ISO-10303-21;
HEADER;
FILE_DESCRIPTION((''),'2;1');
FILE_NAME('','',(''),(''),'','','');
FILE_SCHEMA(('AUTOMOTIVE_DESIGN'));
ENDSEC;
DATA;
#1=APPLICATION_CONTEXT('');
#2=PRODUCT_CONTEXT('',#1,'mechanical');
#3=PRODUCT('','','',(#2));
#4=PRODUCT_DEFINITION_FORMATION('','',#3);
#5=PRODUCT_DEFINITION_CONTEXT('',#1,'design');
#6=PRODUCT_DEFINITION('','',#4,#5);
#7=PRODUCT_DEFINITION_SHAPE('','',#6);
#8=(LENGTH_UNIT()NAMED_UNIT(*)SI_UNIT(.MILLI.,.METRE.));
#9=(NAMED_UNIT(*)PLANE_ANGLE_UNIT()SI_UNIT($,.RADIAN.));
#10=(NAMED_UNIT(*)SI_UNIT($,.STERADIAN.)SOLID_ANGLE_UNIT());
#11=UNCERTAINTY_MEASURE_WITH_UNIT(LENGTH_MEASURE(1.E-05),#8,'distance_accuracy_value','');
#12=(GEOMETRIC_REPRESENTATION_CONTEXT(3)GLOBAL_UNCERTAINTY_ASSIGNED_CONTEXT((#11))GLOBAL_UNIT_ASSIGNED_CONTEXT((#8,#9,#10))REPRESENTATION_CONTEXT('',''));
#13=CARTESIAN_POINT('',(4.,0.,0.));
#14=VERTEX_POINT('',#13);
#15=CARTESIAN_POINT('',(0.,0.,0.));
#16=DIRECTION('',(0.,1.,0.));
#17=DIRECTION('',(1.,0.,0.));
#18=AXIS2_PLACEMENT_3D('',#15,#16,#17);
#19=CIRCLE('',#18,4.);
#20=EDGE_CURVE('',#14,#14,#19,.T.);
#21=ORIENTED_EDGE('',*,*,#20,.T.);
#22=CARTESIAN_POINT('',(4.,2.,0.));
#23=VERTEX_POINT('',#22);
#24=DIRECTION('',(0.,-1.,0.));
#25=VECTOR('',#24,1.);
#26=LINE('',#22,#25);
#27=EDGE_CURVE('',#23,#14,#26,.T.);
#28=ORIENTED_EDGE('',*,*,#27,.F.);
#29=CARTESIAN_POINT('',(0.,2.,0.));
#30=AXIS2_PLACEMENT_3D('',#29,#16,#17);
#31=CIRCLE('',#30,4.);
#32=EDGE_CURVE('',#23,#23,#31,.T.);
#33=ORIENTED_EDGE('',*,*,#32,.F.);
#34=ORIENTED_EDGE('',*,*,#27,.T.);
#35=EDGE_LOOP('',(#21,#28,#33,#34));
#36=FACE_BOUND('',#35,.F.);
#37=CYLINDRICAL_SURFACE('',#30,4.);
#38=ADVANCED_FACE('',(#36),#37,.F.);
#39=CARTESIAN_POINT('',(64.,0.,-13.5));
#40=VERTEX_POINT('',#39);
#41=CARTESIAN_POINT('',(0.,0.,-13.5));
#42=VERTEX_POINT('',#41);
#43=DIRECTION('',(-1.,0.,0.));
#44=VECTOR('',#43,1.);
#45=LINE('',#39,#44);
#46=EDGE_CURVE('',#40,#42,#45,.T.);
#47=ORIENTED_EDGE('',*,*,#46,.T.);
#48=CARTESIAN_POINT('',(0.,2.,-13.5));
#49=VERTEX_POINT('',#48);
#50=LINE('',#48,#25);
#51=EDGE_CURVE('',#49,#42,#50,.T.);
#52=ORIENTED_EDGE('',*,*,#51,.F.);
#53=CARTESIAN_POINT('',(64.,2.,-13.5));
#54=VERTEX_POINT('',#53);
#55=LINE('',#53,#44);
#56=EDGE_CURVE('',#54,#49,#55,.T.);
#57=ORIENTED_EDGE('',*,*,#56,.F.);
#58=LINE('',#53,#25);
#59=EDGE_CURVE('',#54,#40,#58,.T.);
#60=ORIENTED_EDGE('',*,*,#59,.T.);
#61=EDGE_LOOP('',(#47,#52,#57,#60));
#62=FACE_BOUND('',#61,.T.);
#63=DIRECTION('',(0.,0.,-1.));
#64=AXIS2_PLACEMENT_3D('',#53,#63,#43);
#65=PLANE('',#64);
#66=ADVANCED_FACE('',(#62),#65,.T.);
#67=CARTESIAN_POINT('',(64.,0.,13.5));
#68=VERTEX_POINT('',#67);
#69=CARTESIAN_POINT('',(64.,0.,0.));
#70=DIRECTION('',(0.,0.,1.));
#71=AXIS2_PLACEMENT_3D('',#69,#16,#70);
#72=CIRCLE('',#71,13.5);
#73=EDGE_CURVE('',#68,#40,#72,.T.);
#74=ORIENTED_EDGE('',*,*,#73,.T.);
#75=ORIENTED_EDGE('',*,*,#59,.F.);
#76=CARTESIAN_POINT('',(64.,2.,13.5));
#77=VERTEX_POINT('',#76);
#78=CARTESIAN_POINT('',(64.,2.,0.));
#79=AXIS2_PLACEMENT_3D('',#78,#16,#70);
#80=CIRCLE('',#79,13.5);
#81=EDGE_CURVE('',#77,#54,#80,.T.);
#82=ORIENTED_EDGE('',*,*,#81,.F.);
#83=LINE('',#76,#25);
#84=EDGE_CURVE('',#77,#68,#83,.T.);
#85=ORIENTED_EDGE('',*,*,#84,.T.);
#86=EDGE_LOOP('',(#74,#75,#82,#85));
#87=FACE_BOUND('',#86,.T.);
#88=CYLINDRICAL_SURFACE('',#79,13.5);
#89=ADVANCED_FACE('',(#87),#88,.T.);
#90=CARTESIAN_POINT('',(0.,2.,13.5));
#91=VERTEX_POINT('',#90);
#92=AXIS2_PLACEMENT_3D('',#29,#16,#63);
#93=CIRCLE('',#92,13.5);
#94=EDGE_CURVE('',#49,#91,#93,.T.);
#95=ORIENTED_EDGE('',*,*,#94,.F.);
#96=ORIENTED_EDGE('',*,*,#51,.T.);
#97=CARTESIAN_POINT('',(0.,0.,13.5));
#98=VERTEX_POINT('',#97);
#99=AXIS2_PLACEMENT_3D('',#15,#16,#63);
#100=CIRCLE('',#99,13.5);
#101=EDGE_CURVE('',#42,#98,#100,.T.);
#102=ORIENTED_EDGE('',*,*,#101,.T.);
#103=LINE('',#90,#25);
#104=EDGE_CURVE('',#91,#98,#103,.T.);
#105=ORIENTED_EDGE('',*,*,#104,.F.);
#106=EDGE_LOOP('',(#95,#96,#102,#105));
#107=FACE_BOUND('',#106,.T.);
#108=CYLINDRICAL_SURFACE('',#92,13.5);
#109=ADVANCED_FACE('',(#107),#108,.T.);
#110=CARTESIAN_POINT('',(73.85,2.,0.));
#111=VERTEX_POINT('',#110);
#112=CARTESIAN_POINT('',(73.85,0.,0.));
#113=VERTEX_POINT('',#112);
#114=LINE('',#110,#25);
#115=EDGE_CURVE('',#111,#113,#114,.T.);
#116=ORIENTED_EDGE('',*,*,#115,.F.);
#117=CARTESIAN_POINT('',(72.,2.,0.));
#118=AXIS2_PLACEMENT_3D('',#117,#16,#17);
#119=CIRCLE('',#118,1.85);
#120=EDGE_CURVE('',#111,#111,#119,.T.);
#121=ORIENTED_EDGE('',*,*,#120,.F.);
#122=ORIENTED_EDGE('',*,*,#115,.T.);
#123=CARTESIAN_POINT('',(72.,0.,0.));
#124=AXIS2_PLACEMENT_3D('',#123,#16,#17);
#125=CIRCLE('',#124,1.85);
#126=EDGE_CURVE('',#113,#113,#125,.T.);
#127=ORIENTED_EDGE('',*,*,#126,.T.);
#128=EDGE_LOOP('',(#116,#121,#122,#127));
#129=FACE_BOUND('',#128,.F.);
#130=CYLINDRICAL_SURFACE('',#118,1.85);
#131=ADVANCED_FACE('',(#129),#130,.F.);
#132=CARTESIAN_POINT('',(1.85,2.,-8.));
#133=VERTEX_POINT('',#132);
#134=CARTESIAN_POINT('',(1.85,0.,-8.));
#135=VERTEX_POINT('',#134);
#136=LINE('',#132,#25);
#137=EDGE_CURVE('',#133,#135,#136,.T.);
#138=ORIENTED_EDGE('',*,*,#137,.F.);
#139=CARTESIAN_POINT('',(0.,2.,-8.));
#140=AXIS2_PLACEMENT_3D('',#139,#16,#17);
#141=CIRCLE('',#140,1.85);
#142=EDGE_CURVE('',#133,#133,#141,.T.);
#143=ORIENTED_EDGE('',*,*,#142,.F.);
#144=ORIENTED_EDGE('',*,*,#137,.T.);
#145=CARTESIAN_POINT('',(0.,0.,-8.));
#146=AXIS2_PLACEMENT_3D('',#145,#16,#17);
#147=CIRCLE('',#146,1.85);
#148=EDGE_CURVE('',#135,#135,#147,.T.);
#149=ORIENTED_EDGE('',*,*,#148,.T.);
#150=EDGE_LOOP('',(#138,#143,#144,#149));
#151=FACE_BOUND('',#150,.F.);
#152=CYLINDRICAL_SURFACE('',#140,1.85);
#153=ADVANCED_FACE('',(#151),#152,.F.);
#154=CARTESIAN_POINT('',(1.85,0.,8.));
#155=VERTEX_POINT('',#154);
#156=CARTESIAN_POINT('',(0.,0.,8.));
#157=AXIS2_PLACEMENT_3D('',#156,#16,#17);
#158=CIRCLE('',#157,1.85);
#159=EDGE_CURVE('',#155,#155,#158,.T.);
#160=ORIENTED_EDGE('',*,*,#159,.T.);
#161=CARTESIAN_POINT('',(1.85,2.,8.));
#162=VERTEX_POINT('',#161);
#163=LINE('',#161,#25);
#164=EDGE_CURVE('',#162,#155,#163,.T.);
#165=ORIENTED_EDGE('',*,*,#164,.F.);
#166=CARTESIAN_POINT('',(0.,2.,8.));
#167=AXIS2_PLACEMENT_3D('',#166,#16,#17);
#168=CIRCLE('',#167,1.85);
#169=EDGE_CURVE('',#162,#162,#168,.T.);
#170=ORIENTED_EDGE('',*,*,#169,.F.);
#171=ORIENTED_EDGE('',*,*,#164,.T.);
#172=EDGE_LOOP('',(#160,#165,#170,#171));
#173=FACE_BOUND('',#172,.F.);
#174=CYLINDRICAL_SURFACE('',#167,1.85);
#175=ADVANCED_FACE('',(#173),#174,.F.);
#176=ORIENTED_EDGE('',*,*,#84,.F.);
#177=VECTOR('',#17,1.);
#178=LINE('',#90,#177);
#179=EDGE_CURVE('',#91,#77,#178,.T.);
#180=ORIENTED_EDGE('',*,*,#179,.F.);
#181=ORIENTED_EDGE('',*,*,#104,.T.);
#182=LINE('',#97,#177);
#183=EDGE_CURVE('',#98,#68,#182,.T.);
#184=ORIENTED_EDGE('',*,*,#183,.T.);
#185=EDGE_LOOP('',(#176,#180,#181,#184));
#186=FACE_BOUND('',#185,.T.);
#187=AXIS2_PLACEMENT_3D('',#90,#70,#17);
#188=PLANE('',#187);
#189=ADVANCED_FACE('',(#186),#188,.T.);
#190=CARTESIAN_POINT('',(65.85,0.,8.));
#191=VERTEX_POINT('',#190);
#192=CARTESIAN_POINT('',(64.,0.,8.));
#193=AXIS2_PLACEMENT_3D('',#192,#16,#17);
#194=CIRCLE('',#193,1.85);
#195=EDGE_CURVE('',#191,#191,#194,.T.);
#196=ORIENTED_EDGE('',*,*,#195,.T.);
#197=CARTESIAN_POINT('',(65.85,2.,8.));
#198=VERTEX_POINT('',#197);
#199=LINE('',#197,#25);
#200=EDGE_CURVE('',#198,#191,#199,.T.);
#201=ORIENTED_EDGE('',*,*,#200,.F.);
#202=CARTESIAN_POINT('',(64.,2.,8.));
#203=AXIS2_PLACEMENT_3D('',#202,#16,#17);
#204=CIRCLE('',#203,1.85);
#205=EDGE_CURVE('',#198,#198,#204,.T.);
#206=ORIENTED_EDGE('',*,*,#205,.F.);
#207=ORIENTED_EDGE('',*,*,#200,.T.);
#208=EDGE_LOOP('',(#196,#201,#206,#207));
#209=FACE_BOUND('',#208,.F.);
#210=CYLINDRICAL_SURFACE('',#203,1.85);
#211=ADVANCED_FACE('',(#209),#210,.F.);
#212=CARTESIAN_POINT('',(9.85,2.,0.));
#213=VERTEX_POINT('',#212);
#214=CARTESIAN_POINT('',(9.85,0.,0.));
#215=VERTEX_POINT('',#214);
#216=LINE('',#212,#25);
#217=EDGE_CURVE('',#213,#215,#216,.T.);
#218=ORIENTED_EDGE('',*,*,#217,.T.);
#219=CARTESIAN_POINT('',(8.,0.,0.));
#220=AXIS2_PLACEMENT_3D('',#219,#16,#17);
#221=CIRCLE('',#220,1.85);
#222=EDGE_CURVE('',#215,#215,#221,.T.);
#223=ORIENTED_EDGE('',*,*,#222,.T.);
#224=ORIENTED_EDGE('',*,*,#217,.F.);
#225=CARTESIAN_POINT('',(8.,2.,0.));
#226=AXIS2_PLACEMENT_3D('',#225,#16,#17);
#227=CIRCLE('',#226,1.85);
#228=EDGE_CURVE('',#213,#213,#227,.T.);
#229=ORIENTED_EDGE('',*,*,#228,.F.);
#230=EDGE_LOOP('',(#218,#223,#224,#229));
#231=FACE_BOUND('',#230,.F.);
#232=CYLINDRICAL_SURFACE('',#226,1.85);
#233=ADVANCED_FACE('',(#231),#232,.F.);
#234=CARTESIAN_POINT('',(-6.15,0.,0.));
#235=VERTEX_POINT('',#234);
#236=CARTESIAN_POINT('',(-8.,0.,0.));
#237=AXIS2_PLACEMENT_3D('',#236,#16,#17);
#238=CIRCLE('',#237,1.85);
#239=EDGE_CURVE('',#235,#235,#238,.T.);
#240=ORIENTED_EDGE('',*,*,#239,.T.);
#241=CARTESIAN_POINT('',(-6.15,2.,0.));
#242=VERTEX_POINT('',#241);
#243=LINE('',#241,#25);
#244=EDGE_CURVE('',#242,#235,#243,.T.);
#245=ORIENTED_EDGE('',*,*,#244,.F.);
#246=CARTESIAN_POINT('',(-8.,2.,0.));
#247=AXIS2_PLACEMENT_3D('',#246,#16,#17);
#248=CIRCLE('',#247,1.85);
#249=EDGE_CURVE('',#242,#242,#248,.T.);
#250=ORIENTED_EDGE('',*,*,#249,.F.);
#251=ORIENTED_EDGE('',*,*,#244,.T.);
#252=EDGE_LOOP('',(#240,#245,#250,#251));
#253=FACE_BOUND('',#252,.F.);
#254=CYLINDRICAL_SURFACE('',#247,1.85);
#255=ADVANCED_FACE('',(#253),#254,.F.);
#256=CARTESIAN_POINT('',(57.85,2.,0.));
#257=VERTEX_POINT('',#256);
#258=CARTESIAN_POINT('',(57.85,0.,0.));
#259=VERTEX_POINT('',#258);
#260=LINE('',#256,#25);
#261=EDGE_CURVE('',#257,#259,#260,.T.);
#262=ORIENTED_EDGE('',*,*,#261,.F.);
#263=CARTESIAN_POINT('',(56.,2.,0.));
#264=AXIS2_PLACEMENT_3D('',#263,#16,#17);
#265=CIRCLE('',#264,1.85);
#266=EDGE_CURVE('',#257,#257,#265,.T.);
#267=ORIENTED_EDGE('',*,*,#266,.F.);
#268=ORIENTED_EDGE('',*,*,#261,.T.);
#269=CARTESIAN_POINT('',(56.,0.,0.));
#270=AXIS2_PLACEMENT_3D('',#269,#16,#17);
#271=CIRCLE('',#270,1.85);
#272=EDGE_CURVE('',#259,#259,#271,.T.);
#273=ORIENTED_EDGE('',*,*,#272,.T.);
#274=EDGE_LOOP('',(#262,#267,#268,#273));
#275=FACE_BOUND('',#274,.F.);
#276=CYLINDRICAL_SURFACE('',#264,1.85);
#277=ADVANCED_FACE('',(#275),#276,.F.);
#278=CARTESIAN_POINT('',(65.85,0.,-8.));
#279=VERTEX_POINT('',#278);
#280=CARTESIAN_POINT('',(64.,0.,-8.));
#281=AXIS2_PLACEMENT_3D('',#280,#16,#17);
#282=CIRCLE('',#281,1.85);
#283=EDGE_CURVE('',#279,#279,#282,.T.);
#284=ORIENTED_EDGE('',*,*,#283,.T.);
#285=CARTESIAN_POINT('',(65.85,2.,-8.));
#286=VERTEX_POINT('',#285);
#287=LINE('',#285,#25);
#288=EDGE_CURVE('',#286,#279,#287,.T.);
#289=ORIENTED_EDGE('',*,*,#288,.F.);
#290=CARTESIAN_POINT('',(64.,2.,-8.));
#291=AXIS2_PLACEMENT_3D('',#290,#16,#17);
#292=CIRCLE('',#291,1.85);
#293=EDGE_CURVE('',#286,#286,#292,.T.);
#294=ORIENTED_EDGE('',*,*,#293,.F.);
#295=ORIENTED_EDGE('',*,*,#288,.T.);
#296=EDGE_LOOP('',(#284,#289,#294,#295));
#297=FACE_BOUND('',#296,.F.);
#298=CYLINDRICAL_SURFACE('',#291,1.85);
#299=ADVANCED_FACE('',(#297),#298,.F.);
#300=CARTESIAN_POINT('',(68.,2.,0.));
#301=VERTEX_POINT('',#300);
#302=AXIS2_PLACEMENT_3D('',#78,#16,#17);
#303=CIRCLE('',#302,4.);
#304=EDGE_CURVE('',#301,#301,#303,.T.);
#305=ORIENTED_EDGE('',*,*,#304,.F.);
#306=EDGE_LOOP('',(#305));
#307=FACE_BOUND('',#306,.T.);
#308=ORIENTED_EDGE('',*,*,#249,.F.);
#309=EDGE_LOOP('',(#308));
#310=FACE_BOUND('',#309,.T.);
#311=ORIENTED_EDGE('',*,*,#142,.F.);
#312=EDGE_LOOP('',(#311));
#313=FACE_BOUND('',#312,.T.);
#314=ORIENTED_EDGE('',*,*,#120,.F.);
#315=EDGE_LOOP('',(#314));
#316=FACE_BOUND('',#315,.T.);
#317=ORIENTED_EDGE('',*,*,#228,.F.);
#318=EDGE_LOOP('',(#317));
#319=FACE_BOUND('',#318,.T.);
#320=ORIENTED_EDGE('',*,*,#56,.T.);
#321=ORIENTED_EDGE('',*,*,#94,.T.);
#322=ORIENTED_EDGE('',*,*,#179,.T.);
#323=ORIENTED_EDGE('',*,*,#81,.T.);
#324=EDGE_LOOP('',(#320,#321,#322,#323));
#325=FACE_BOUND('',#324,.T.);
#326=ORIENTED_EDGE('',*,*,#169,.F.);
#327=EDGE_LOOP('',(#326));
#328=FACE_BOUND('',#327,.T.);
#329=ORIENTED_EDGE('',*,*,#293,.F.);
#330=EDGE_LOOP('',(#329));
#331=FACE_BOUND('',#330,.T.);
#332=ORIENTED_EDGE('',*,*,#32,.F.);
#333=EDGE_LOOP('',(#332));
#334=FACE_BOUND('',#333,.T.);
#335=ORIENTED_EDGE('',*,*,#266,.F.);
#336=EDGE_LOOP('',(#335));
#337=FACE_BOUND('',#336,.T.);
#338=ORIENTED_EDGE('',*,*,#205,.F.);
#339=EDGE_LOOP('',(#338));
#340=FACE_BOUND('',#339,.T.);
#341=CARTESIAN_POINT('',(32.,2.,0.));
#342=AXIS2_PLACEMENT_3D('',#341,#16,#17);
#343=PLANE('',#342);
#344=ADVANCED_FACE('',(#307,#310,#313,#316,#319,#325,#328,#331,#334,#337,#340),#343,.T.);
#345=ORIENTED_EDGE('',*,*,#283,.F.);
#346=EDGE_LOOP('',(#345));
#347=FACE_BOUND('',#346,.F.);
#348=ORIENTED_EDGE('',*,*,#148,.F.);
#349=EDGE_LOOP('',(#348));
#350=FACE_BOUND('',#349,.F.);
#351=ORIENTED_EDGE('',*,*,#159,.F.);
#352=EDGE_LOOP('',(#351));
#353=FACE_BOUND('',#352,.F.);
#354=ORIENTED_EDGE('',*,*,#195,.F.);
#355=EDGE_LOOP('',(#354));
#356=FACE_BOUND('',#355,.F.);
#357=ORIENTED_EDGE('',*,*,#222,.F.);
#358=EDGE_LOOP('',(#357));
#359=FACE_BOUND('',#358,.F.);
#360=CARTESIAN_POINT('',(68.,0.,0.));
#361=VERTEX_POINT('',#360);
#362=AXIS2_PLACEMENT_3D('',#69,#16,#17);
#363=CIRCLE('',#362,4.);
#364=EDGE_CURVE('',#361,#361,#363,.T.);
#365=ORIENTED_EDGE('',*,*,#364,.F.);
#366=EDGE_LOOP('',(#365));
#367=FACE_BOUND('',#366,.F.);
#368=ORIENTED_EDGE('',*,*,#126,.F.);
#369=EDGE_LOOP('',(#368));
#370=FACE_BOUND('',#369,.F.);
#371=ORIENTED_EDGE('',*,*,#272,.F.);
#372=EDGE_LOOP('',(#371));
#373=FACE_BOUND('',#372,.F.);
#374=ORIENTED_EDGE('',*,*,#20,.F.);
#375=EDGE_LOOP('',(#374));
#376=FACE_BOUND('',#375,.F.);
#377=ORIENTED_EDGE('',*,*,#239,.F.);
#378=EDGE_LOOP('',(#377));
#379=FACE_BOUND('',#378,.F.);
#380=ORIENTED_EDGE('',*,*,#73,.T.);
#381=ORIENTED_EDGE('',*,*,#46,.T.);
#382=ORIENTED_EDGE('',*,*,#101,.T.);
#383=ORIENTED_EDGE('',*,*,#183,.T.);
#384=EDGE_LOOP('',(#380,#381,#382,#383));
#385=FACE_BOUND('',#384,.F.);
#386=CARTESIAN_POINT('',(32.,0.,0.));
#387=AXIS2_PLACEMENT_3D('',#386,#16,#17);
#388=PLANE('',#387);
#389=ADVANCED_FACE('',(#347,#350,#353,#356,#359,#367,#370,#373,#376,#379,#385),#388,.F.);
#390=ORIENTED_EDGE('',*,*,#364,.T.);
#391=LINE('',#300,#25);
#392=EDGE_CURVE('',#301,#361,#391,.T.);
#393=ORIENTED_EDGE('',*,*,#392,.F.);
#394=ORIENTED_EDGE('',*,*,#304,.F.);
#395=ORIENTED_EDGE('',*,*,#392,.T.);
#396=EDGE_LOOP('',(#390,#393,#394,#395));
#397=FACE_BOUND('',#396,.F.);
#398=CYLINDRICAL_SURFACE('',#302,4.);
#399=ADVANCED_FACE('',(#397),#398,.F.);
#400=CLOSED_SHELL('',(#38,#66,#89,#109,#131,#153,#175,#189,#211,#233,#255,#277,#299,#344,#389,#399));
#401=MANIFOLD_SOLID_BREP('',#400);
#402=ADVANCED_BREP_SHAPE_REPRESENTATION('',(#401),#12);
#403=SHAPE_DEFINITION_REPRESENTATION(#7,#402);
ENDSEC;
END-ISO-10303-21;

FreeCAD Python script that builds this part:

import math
import FreeCAD as App
import Part
import Sketcher

V = App.Vector

doc = App.newDocument("Part")
params = doc.addObject("Spreadsheet::Sheet", "Params")
for row, (alias, value) in enumerate([
    ("sketch1_diameter", "8 mm"),
    ("sketch1_diameter2", "3.7 mm"),
    ("sketch1_radius", "13.5 mm"),
    ("sketch1_width", "64 mm"),
    ("pad1_length", "2 mm"),
], start=1):
    params.set(f"A{row}", alias)
    params.set(f"B{row}", "=" + value)
    params.setAlias(f"B{row}", alias)

body = doc.addObject("PartDesign::Body", "Body")

# Sketch on XZ plane
sketch1 = body.newObject("Sketcher::SketchObject", "Sketch")
sketch1.AttachmentSupport = (doc.getObject("XZ_Plane"), [""])
sketch1.MapMode = "FlatFace"
sketch1.AttachmentOffset = App.Placement(V(0, 0, -2), App.Rotation())
sketch1.addGeometry([
    Part.LineSegment(V(64, -13.5, 0), V(0, -13.5, 0)),  # 0
    Part.ArcOfCircle(Part.Circle(V(0, 0, 0), V(0, 0, 1), 13.5), math.radians(90), math.radians(270)),  # 1
    Part.LineSegment(V(0, 13.5, 0), V(64, 13.5, 0)),  # 2
    Part.ArcOfCircle(Part.Circle(V(64, 0, 0), V(0, 0, 1), 13.5), math.radians(-90), math.radians(90)),  # 3
    Part.Circle(V(0, 8, 0), V(0, 0, 1), 1.85),  # 4
    Part.Circle(V(64, 8, 0), V(0, 0, 1), 1.85),  # 5
    Part.Circle(V(-8, 0, 0), V(0, 0, 1), 1.85),  # 6
    Part.Circle(V(0, 0, 0), V(0, 0, 1), 4),  # 7
    Part.Circle(V(8, 0, 0), V(0, 0, 1), 1.85),  # 8
    Part.Circle(V(0, -8, 0), V(0, 0, 1), 1.85),  # 9
    Part.Circle(V(56, 0, 0), V(0, 0, 1), 1.85),  # 10
    Part.Circle(V(64, 0, 0), V(0, 0, 1), 4),  # 11
    Part.Circle(V(72, 0, 0), V(0, 0, 1), 1.85),  # 12
    Part.Circle(V(64, -8, 0), V(0, 0, 1), 1.85),  # 13
], False)
sketch1.addConstraint([
    Sketcher.Constraint("Tangent", 0, 2, 1, 2),
    Sketcher.Constraint("Tangent", 1, 1, 2, 1),
    Sketcher.Constraint("Tangent", 2, 2, 3, 2),
    Sketcher.Constraint("Tangent", 3, 1, 0, 1),
    Sketcher.Constraint("Horizontal", 0),
    Sketcher.Constraint("Horizontal", 2),
    Sketcher.Constraint("Coincident", 1, 3, -1, 1),
    Sketcher.Constraint("Coincident", 7, 3, -1, 1),
    Sketcher.Constraint("Coincident", 11, 3, 3, 3),
    Sketcher.Constraint("Equal", 4, 5),
    Sketcher.Constraint("Equal", 5, 6),
    Sketcher.Constraint("Equal", 6, 8),
    Sketcher.Constraint("Equal", 8, 9),
    Sketcher.Constraint("Equal", 9, 10),
    Sketcher.Constraint("Equal", 7, 11),
    Sketcher.Constraint("Equal", 10, 12),
    Sketcher.Constraint("Equal", 12, 13),
    Sketcher.Constraint("Symmetric", 6, 3, 8, 3, -1, 1),
    Sketcher.Constraint("Symmetric", 4, 3, 9, 3, -1, 1),
    Sketcher.Constraint("Symmetric", 5, 3, 13, 3, -1),
    Sketcher.Constraint("PointOnObject", 4, 3, -2),
    Sketcher.Constraint("PointOnObject", 6, 3, -1),
    Sketcher.Constraint("PointOnObject", 10, 3, -1),
    Sketcher.Constraint("PointOnObject", 12, 3, -1),
    Sketcher.Constraint("Horizontal", 4, 3, 5, 3),
    Sketcher.Constraint("Vertical", 3, 3, 5, 3),
    Sketcher.Constraint("Diameter", 7, 8.0),
    Sketcher.Constraint("Diameter", 4, 3.7),
    Sketcher.Constraint("Radius", 1, 13.5),
    Sketcher.Constraint("DistanceX", 0, 2, 0, 1, 64.0),
    Sketcher.Constraint("DistanceY", -1, 1, 4, 3, 8.0),
    Sketcher.Constraint("DistanceX", 6, 3, -1, 1, 8.0),
    Sketcher.Constraint("DistanceX", -1, 1, 10, 3, 56.0),
    Sketcher.Constraint("DistanceX", -1, 1, 12, 3, 72.0),
])
sketch1.setExpression("Constraints[26]", "Params.sketch1_diameter")
sketch1.setExpression("Constraints[27]", "Params.sketch1_diameter2")
sketch1.setExpression("Constraints[28]", "Params.sketch1_radius")
sketch1.setExpression("Constraints[29]", "Params.sketch1_width")
pad1 = body.newObject("PartDesign::Pad", "Pad")
pad1.Profile = sketch1
pad1.setExpression("Length", "Params.pad1_length")

doc.recompute()
